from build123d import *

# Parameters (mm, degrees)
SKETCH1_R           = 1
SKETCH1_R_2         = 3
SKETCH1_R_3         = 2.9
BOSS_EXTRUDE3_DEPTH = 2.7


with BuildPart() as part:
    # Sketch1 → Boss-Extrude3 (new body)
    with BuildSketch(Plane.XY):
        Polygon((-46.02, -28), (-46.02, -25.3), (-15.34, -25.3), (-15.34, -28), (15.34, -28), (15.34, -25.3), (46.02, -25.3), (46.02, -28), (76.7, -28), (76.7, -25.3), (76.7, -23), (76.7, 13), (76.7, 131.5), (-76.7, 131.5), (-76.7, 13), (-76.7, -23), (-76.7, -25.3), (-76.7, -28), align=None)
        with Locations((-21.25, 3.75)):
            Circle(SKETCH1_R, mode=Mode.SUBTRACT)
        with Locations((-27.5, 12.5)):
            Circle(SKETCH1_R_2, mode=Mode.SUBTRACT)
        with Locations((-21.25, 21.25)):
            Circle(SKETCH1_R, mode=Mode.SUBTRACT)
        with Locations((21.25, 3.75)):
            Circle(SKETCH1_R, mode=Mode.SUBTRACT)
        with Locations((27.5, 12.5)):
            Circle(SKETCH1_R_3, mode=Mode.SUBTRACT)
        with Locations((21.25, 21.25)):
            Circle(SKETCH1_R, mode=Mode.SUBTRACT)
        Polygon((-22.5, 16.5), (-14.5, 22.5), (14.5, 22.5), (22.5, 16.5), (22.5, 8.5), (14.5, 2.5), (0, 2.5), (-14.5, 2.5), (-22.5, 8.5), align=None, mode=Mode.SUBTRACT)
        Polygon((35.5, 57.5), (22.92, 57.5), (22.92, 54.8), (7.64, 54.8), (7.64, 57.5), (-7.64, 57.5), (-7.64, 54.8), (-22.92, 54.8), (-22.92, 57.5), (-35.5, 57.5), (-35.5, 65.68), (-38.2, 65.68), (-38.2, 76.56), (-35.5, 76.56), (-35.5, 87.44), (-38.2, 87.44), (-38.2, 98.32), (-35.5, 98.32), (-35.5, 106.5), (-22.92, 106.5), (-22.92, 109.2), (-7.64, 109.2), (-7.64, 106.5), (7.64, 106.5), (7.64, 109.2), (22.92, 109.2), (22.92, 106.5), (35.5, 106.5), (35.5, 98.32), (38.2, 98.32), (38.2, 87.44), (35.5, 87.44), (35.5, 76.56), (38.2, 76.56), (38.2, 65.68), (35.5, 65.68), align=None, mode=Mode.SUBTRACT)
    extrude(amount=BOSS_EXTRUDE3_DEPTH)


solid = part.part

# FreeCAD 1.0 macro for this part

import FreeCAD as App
import Part
import Sketcher
from FreeCAD import Vector

doc = App.newDocument("Part")
body = doc.addObject("PartDesign::Body", "Body")

sketch1 = doc.addObject("Sketcher::SketchObject", "Sketch")
body.addObject(sketch1)
sketch1.AttachmentSupport = (doc.XY_Plane, [""])
sketch1.MapMode = "FlatFace"
sketch1.addGeometry(Part.LineSegment(Vector(-46, -28, 0), Vector(-46, -25.3, 0)), False)
sketch1.addGeometry(Part.LineSegment(Vector(-46, -25.3, 0), Vector(-15.3, -25.3, 0)), False)
sketch1.addGeometry(Part.LineSegment(Vector(-15.3, -25.3, 0), Vector(-15.3, -28, 0)), False)
sketch1.addGeometry(Part.LineSegment(Vector(-15.3, -28, 0), Vector(15.3, -28, 0)), False)
sketch1.addGeometry(Part.LineSegment(Vector(15.3, -28, 0), Vector(15.3, -25.3, 0)), False)
sketch1.addGeometry(Part.LineSegment(Vector(15.3, -25.3, 0), Vector(46, -25.3, 0)), False)
sketch1.addGeometry(Part.LineSegment(Vector(46, -25.3, 0), Vector(46, -28, 0)), False)
sketch1.addGeometry(Part.LineSegment(Vector(46, -28, 0), Vector(76.7, -28, 0)), False)
sketch1.addGeometry(Part.LineSegment(Vector(76.7, -28, 0), Vector(76.7, 131.5, 0)), False)
sketch1.addGeometry(Part.LineSegment(Vector(76.7, 131.5, 0), Vector(-76.7, 131.5, 0)), False)
sketch1.addGeometry(Part.LineSegment(Vector(-76.7, 131.5, 0), Vector(-76.7, -28, 0)), False)
sketch1.addGeometry(Part.LineSegment(Vector(-76.7, -28, 0), Vector(-46, -28, 0)), False)
sketch1.addGeometry(Part.Circle(Vector(-21.2, 3.8, 0), Vector(0, 0, 1), 1), False)
sketch1.addGeometry(Part.Circle(Vector(-27.5, 12.5, 0), Vector(0, 0, 1), 3), False)
sketch1.addGeometry(Part.Circle(Vector(-21.2, 21.2, 0), Vector(0, 0, 1), 1), False)
sketch1.addGeometry(Part.LineSegment(Vector(-22.5, 8.5, 0), Vector(-22.5, 16.5, 0)), False)
sketch1.addGeometry(Part.LineSegment(Vector(-22.5, 16.5, 0), Vector(-14.5, 22.5, 0)), False)
sketch1.addGeometry(Part.LineSegment(Vector(-14.5, 22.5, 0), Vector(14.5, 22.5, 0)), False)
sketch1.addGeometry(Part.LineSegment(Vector(14.5, 22.5, 0), Vector(22.5, 16.5, 0)), False)
sketch1.addGeometry(Part.LineSegment(Vector(22.5, 16.5, 0), Vector(22.5, 8.5, 0)), False)
sketch1.addGeometry(Part.LineSegment(Vector(22.5, 8.5, 0), Vector(14.5, 2.5, 0)), False)
sketch1.addGeometry(Part.LineSegment(Vector(14.5, 2.5, 0), Vector(-14.5, 2.5, 0)), False)
sketch1.addGeometry(Part.LineSegment(Vector(-14.5, 2.5, 0), Vector(-22.5, 8.5, 0)), False)
sketch1.addGeometry(Part.Circle(Vector(21.2, 3.8, 0), Vector(0, 0, 1), 1), False)
sketch1.addGeometry(Part.Circle(Vector(27.5, 12.5, 0), Vector(0, 0, 1), 2.9), False)
sketch1.addGeometry(Part.Circle(Vector(21.2, 21.2, 0), Vector(0, 0, 1), 1), False)
sketch1.addGeometry(Part.LineSegment(Vector(35.5, 65.7, 0), Vector(35.5, 57.5, 0)), False)
sketch1.addGeometry(Part.LineSegment(Vector(35.5, 57.5, 0), Vector(22.9, 57.5, 0)), False)
sketch1.addGeometry(Part.LineSegment(Vector(22.9, 57.5, 0), Vector(22.9, 54.8, 0)), False)
sketch1.addGeometry(Part.LineSegment(Vector(22.9, 54.8, 0), Vector(7.6, 54.8, 0)), False)
sketch1.addGeometry(Part.LineSegment(Vector(7.6, 54.8, 0), Vector(7.6, 57.5, 0)), False)
sketch1.addGeometry(Part.LineSegment(Vector(7.6, 57.5, 0), Vector(-7.6, 57.5, 0)), False)
sketch1.addGeometry(Part.LineSegment(Vector(-7.6, 57.5, 0), Vector(-7.6, 54.8, 0)), False)
sketch1.addGeometry(Part.LineSegment(Vector(-7.6, 54.8, 0), Vector(-22.9, 54.8, 0)), False)
sketch1.addGeometry(Part.LineSegment(Vector(-22.9, 54.8, 0), Vector(-22.9, 57.5, 0)), False)
sketch1.addGeometry(Part.LineSegment(Vector(-22.9, 57.5, 0), Vector(-35.5, 57.5, 0)), False)
sketch1.addGeometry(Part.LineSegment(Vector(-35.5, 57.5, 0), Vector(-35.5, 65.7, 0)), False)
sketch1.addGeometry(Part.LineSegment(Vector(-35.5, 65.7, 0), Vector(-38.2, 65.7, 0)), False)
sketch1.addGeometry(Part.LineSegment(Vector(-38.2, 65.7, 0), Vector(-38.2, 76.6, 0)), False)
sketch1.addGeometry(Part.LineSegment(Vector(-38.2, 76.6, 0), Vector(-35.5, 76.6, 0)), False)
sketch1.addGeometry(Part.LineSegment(Vector(-35.5, 76.6, 0), Vector(-35.5, 87.4, 0)), False)
sketch1.addGeometry(Part.LineSegment(Vector(-35.5, 87.4, 0), Vector(-38.2, 87.4, 0)), False)
sketch1.addGeometry(Part.LineSegment(Vector(-38.2, 87.4, 0), Vector(-38.2, 98.3, 0)), False)
sketch1.addGeometry(Part.LineSegment(Vector(-38.2, 98.3, 0), Vector(-35.5, 98.3, 0)), False)
sketch1.addGeometry(Part.LineSegment(Vector(-35.5, 98.3, 0), Vector(-35.5, 106.5, 0)), False)
sketch1.addGeometry(Part.LineSegment(Vector(-35.5, 106.5, 0), Vector(-22.9, 106.5, 0)), False)
sketch1.addGeometry(Part.LineSegment(Vector(-22.9, 106.5, 0), Vector(-22.9, 109.2, 0)), False)
sketch1.addGeometry(Part.LineSegment(Vector(-22.9, 109.2, 0), Vector(-7.6, 109.2, 0)), False)
sketch1.addGeometry(Part.LineSegment(Vector(-7.6, 109.2, 0), Vector(-7.6, 106.5, 0)), False)
sketch1.addGeometry(Part.LineSegment(Vector(-7.6, 106.5, 0), Vector(7.6, 106.5, 0)), False)
sketch1.addGeometry(Part.LineSegment(Vector(7.6, 106.5, 0), Vector(7.6, 109.2, 0)), False)
sketch1.addGeometry(Part.LineSegment(Vector(7.6, 109.2, 0), Vector(22.9, 109.2, 0)), False)
sketch1.addGeometry(Part.LineSegment(Vector(22.9, 109.2, 0), Vector(22.9, 106.5, 0)), False)
sketch1.addGeometry(Part.LineSegment(Vector(22.9, 106.5, 0), Vector(35.5, 106.5, 0)), False)
sketch1.addGeometry(Part.LineSegment(Vector(35.5, 106.5, 0), Vector(35.5, 98.3, 0)), False)
sketch1.addGeometry(Part.LineSegment(Vector(35.5, 98.3, 0), Vector(38.2, 98.3, 0)), False)
sketch1.addGeometry(Part.LineSegment(Vector(38.2, 98.3, 0), Vector(38.2, 87.4, 0)), False)
sketch1.addGeometry(Part.LineSegment(Vector(38.2, 87.4, 0), Vector(35.5, 87.4, 0)), False)
sketch1.addGeometry(Part.LineSegment(Vector(35.5, 87.4, 0), Vector(35.5, 76.6, 0)), False)
sketch1.addGeometry(Part.LineSegment(Vector(35.5, 76.6, 0), Vector(38.2, 76.6, 0)), False)
sketch1.addGeometry(Part.LineSegment(Vector(38.2, 76.6, 0), Vector(38.2, 65.7, 0)), False)
sketch1.addGeometry(Part.LineSegment(Vector(38.2, 65.7, 0), Vector(35.5, 65.7, 0)), False)
sketch1.addConstraint(Sketcher.Constraint("Coincident", 0, 2, 1, 1))
sketch1.addConstraint(Sketcher.Constraint("Coincident", 1, 2, 2, 1))
sketch1.addConstraint(Sketcher.Constraint("Coincident", 2, 2, 3, 1))
sketch1.addConstraint(Sketcher.Constraint("Coincident", 3, 2, 4, 1))
sketch1.addConstraint(Sketcher.Constraint("Coincident", 4, 2, 5, 1))
sketch1.addConstraint(Sketcher.Constraint("Coincident", 5, 2, 6, 1))
sketch1.addConstraint(Sketcher.Constraint("Coincident", 6, 2, 7, 1))
sketch1.addConstraint(Sketcher.Constraint("Coincident", 7, 2, 8, 1))
sketch1.addConstraint(Sketcher.Constraint("Coincident", 8, 2, 9, 1))
sketch1.addConstraint(Sketcher.Constraint("Coincident", 9, 2, 10, 1))
sketch1.addConstraint(Sketcher.Constraint("Coincident", 10, 2, 11, 1))
sketch1.addConstraint(Sketcher.Constraint("Coincident", 11, 2, 0, 1))
sketch1.addConstraint(Sketcher.Constraint("Coincident", 15, 2, 16, 1))
sketch1.addConstraint(Sketcher.Constraint("Coincident", 16, 2, 17, 1))
sketch1.addConstraint(Sketcher.Constraint("Coincident", 17, 2, 18, 1))
sketch1.addConstraint(Sketcher.Constraint("Coincident", 18, 2, 19, 1))
sketch1.addConstraint(Sketcher.Constraint("Coincident", 19, 2, 20, 1))
sketch1.addConstraint(Sketcher.Constraint("Coincident", 20, 2, 21, 1))
sketch1.addConstraint(Sketcher.Constraint("Coincident", 21, 2, 22, 1))
sketch1.addConstraint(Sketcher.Constraint("Coincident", 22, 2, 15, 1))
sketch1.addConstraint(Sketcher.Constraint("Coincident", 26, 2, 27, 1))
sketch1.addConstraint(Sketcher.Constraint("Coincident", 27, 2, 28, 1))
sketch1.addConstraint(Sketcher.Constraint("Coincident", 28, 2, 29, 1))
sketch1.addConstraint(Sketcher.Constraint("Coincident", 29, 2, 30, 1))
sketch1.addConstraint(Sketcher.Constraint("Coincident", 30, 2, 31, 1))
sketch1.addConstraint(Sketcher.Constraint("Coincident", 31, 2, 32, 1))
sketch1.addConstraint(Sketcher.Constraint("Coincident", 32, 2, 33, 1))
sketch1.addConstraint(Sketcher.Constraint("Coincident", 33, 2, 34, 1))
sketch1.addConstraint(Sketcher.Constraint("Coincident", 34, 2, 35, 1))
sketch1.addConstraint(Sketcher.Constraint("Coincident", 35, 2, 36, 1))
sketch1.addConstraint(Sketcher.Constraint("Coincident", 36, 2, 37, 1))
sketch1.addConstraint(Sketcher.Constraint("Coincident", 37, 2, 38, 1))
sketch1.addConstraint(Sketcher.Constraint("Coincident", 38, 2, 39, 1))
sketch1.addConstraint(Sketcher.Constraint("Coincident", 39, 2, 40, 1))
sketch1.addConstraint(Sketcher.Constraint("Coincident", 40, 2, 41, 1))
sketch1.addConstraint(Sketcher.Constraint("Coincident", 41, 2, 42, 1))
sketch1.addConstraint(Sketcher.Constraint("Coincident", 42, 2, 43, 1))
sketch1.addConstraint(Sketcher.Constraint("Coincident", 43, 2, 44, 1))
sketch1.addConstraint(Sketcher.Constraint("Coincident", 44, 2, 45, 1))
sketch1.addConstraint(Sketcher.Constraint("Coincident", 45, 2, 46, 1))
sketch1.addConstraint(Sketcher.Constraint("Coincident", 46, 2, 47, 1))
sketch1.addConstraint(Sketcher.Constraint("Coincident", 47, 2, 48, 1))
sketch1.addConstraint(Sketcher.Constraint("Coincident", 48, 2, 49, 1))
sketch1.addConstraint(Sketcher.Constraint("Coincident", 49, 2, 50, 1))
sketch1.addConstraint(Sketcher.Constraint("Coincident", 50, 2, 51, 1))
sketch1.addConstraint(Sketcher.Constraint("Coincident", 51, 2, 52, 1))
sketch1.addConstraint(Sketcher.Constraint("Coincident", 52, 2, 53, 1))
sketch1.addConstraint(Sketcher.Constraint("Coincident", 53, 2, 54, 1))
sketch1.addConstraint(Sketcher.Constraint("Coincident", 54, 2, 55, 1))
sketch1.addConstraint(Sketcher.Constraint("Coincident", 55, 2, 56, 1))
sketch1.addConstraint(Sketcher.Constraint("Coincident", 56, 2, 57, 1))
sketch1.addConstraint(Sketcher.Constraint("Coincident", 57, 2, 58, 1))
sketch1.addConstraint(Sketcher.Constraint("Coincident", 58, 2, 59, 1))
sketch1.addConstraint(Sketcher.Constraint("Coincident", 59, 2, 60, 1))
sketch1.addConstraint(Sketcher.Constraint("Coincident", 60, 2, 61, 1))
sketch1.addConstraint(Sketcher.Constraint("Coincident", 61, 2, 26, 1))
sketch1.addConstraint(Sketcher.Constraint("Vertical", 0))
sketch1.addConstraint(Sketcher.Constraint("Horizontal", 1))
sketch1.addConstraint(Sketcher.Constraint("Vertical", 2))
sketch1.addConstraint(Sketcher.Constraint("Horizontal", 3))
sketch1.addConstraint(Sketcher.Constraint("Vertical", 4))
sketch1.addConstraint(Sketcher.Constraint("Horizontal", 5))
sketch1.addConstraint(Sketcher.Constraint("Vertical", 6))
sketch1.addConstraint(Sketcher.Constraint("Horizontal", 7))
sketch1.addConstraint(Sketcher.Constraint("Vertical", 8))
sketch1.addConstraint(Sketcher.Constraint("Horizontal", 9))
sketch1.addConstraint(Sketcher.Constraint("Vertical", 10))
sketch1.addConstraint(Sketcher.Constraint("Horizontal", 11))
sketch1.addConstraint(Sketcher.Constraint("Vertical", 15))
sketch1.addConstraint(Sketcher.Constraint("Horizontal", 17))
sketch1.addConstraint(Sketcher.Constraint("Vertical", 19))
sketch1.addConstraint(Sketcher.Constraint("Horizontal", 21))
sketch1.addConstraint(Sketcher.Constraint("Vertical", 26))
sketch1.addConstraint(Sketcher.Constraint("Horizontal", 27))
sketch1.addConstraint(Sketcher.Constraint("Vertical", 28))
sketch1.addConstraint(Sketcher.Constraint("Horizontal", 29))
sketch1.addConstraint(Sketcher.Constraint("Vertical", 30))
sketch1.addConstraint(Sketcher.Constraint("Horizontal", 31))
sketch1.addConstraint(Sketcher.Constraint("Vertical", 32))
sketch1.addConstraint(Sketcher.Constraint("Horizontal", 33))
sketch1.addConstraint(Sketcher.Constraint("Vertical", 34))
sketch1.addConstraint(Sketcher.Constraint("Horizontal", 35))
sketch1.addConstraint(Sketcher.Constraint("Vertical", 36))
sketch1.addConstraint(Sketcher.Constraint("Horizontal", 37))
sketch1.addConstraint(Sketcher.Constraint("Vertical", 38))
sketch1.addConstraint(Sketcher.Constraint("Horizontal", 39))
sketch1.addConstraint(Sketcher.Constraint("Vertical", 40))
sketch1.addConstraint(Sketcher.Constraint("Horizontal", 41))
sketch1.addConstraint(Sketcher.Constraint("Vertical", 42))
sketch1.addConstraint(Sketcher.Constraint("Horizontal", 43))
sketch1.addConstraint(Sketcher.Constraint("Vertical", 44))
sketch1.addConstraint(Sketcher.Constraint("Horizontal", 45))
sketch1.addConstraint(Sketcher.Constraint("Vertical", 46))
sketch1.addConstraint(Sketcher.Constraint("Horizontal", 47))
sketch1.addConstraint(Sketcher.Constraint("Vertical", 48))
sketch1.addConstraint(Sketcher.Constraint("Horizontal", 49))
sketch1.addConstraint(Sketcher.Constraint("Vertical", 50))
sketch1.addConstraint(Sketcher.Constraint("Horizontal", 51))
sketch1.addConstraint(Sketcher.Constraint("Vertical", 52))
sketch1.addConstraint(Sketcher.Constraint("Horizontal", 53))
sketch1.addConstraint(Sketcher.Constraint("Vertical", 54))
sketch1.addConstraint(Sketcher.Constraint("Horizontal", 55))
sketch1.addConstraint(Sketcher.Constraint("Vertical", 56))
sketch1.addConstraint(Sketcher.Constraint("Horizontal", 57))
sketch1.addConstraint(Sketcher.Constraint("Vertical", 58))
sketch1.addConstraint(Sketcher.Constraint("Horizontal", 59))
sketch1.addConstraint(Sketcher.Constraint("Vertical", 60))
sketch1.addConstraint(Sketcher.Constraint("Horizontal", 61))
sketch1.addConstraint(Sketcher.Constraint("Equal", 12, 14))
sketch1.addConstraint(Sketcher.Constraint("Equal", 14, 23))
sketch1.addConstraint(Sketcher.Constraint("Equal", 23, 25))
sketch1.addConstraint(Sketcher.Constraint("Symmetric", 12, 3, 23, 3, -2))
sketch1.addConstraint(Sketcher.Constraint("Symmetric", 13, 3, 24, 3, -2))
sketch1.addConstraint(Sketcher.Constraint("Symmetric", 14, 3, 25, 3, -2))
sketch1.addConstraint(Sketcher.Constraint("Symmetric", 1, 2, 4, 2, -2))
sketch1.addConstraint(Sketcher.Constraint("Symmetric", 7, 2, 10, 2, -2))
sketch1.addConstraint(Sketcher.Constraint("Symmetric", 15, 2, 18, 2, -2))
sketch1.addConstraint(Sketcher.Constraint("Symmetric", 29, 2, 32, 2, -2))
sketch1.addConstraint(Sketcher.Constraint("Symmetric", 27, 2, 34, 2, -2))
sketch1.addConstraint(Sketcher.Constraint("Symmetric", 47, 2, 50, 2, -2))
sketch1.addConstraint(Sketcher.Constraint("Symmetric", 45, 2, 52, 2, -2))
sketch1.addConstraint(Sketcher.Constraint("Symmetric", 43, 2, 54, 2, -2))
sketch1.addConstraint(Sketcher.Constraint("Symmetric", 41, 2, 56, 2, -2))
sketch1.addConstraint(Sketcher.Constraint("Symmetric", 39, 2, 58, 2, -2))
sketch1.addConstraint(Sketcher.Constraint("Symmetric", 37, 2, 60, 2, -2))
sketch1.addConstraint(Sketcher.Constraint("Parallel", 16, 20))
sketch1.addConstraint(Sketcher.Constraint("Parallel", 18, 22))
sketch1.addConstraint(Sketcher.Constraint("Horizontal", 3, 2, 6, 2))
sketch1.addConstraint(Sketcher.Constraint("Horizontal", 19, 2, 22, 2))
sketch1.addConstraint(Sketcher.Constraint("Horizontal", 27, 2, 30, 2))
sketch1.addConstraint(Sketcher.Constraint("Horizontal", 45, 2, 48, 2))
sketch1.addConstraint(Sketcher.Constraint("Vertical", 12, 3, 14, 3))
sketch1.addConstraint(Sketcher.Constraint("Vertical", 17, 2, 20, 2))
sketch1.addConstraint(Sketcher.Constraint("Vertical", 16, 2, 21, 2))
sketch1.addConstraint(Sketcher.Constraint("Vertical", 36, 2, 39, 2))
sketch1.addConstraint(Sketcher.Constraint("Vertical", 38, 2, 41, 2))
sketch1.addConstraint(Sketcher.Constraint("Vertical", 40, 2, 43, 2))
sketch1.addConstraint(Sketcher.Constraint("Vertical", 34, 2, 45, 2))
sketch1.addConstraint(Sketcher.Constraint("Vertical", 32, 2, 47, 2))
sketch1.addConstraint(Sketcher.Constraint("Vertical", 26, 2, 53, 2))
sketch1.addConstraint(Sketcher.Constraint("Equal", 1, 3))
sketch1.addConstraint(Sketcher.Constraint("Equal", 3, 5))
sketch1.addConstraint(Sketcher.Constraint("Equal", 5, 7))
sketch1.addConstraint(Sketcher.Constraint("Equal", 29, 31))
sketch1.addConstraint(Sketcher.Constraint("Equal", 61, 0))
sketch1.addConstraint(Sketcher.Constraint("Equal", 6, 28))
sketch1.addConstraint(Sketcher.Constraint("Equal", 38, 40))
sketch1.addConstraint(Sketcher.Constraint("Equal", 40, 42))
sketch1.addConstraint(Sketcher.Constraint("Equal", 36, 44))
sketch1.addConstraint(Sketcher.Constraint("Equal", 34, 46))
sketch1.addConstraint(Sketcher.Constraint("Diameter", 12, 2.0))
sketch1.addConstraint(Sketcher.Constraint("Diameter", 13, 6.0))
sketch1.addConstraint(Sketcher.Constraint("Diameter", 24, 5.8))
sketch1.addConstraint(Sketcher.Constraint("DistanceX", 17, 1, 17, 2, 29.0))
sketch1.addConstraint(Sketcher.Constraint("DistanceY", 15, 1, 15, 2, 8.0))
sketch1.addConstraint(Sketcher.Constraint("Distance", 16, 10.0))
sketch1.addConstraint(Sketcher.Constraint("DistanceX", 9, 2, 9, 1, 153.4))
sketch1.addConstraint(Sketcher.Constraint("DistanceX", 37, 2, 37, 1, 2.7))
sketch1.addConstraint(Sketcher.Constraint("DistanceY", 8, 1, 8, 2, 159.5))
sketch1.addConstraint(Sketcher.Constraint("DistanceY", 2, 2, -1, 1, 28.0))
sketch1.addConstraint(Sketcher.Constraint("DistanceX", 27, 2, 27, 1, 12.58))
sketch1.addConstraint(Sketcher.Constraint("DistanceX", 29, 2, 29, 1, 15.28))
sketch1.addConstraint(Sketcher.Constraint("DistanceY", 26, 2, 26, 1, 8.18))
sketch1.addConstraint(Sketcher.Constraint("DistanceY", 38, 1, 38, 2, 10.88))
sketch1.addConstraint(Sketcher.Constraint("DistanceX", 13, 3, -1, 1, 27.5))
sketch1.addConstraint(Sketcher.Constraint("DistanceY", -1, 1, 13, 3, 12.5))
sketch1.addConstraint(Sketcher.Constraint("DistanceX", 15, 2, -1, 1, 22.5))
sketch1.addConstraint(Sketcher.Constraint("DistanceY", -1, 1, 15, 2, 16.5))
sketch1.addConstraint(Sketcher.Constraint("DistanceY", -1, 1, 26, 2, 57.5))
sketch1.addConstraint(Sketcher.Constraint("DistanceX", 12, 3, -1, 1, 21.25))
sketch1.addConstraint(Sketcher.Constraint("DistanceY", -1, 1, 12, 3, 3.75))
sketch1.addConstraint(Sketcher.Constraint("DistanceY", -1, 1, 14, 3, 21.25))
pad1 = doc.addObject("PartDesign::Pad", "Pad")
body.addObject(pad1)
pad1.Profile = sketch1
pad1.Length = 2.7

doc.recompute()
